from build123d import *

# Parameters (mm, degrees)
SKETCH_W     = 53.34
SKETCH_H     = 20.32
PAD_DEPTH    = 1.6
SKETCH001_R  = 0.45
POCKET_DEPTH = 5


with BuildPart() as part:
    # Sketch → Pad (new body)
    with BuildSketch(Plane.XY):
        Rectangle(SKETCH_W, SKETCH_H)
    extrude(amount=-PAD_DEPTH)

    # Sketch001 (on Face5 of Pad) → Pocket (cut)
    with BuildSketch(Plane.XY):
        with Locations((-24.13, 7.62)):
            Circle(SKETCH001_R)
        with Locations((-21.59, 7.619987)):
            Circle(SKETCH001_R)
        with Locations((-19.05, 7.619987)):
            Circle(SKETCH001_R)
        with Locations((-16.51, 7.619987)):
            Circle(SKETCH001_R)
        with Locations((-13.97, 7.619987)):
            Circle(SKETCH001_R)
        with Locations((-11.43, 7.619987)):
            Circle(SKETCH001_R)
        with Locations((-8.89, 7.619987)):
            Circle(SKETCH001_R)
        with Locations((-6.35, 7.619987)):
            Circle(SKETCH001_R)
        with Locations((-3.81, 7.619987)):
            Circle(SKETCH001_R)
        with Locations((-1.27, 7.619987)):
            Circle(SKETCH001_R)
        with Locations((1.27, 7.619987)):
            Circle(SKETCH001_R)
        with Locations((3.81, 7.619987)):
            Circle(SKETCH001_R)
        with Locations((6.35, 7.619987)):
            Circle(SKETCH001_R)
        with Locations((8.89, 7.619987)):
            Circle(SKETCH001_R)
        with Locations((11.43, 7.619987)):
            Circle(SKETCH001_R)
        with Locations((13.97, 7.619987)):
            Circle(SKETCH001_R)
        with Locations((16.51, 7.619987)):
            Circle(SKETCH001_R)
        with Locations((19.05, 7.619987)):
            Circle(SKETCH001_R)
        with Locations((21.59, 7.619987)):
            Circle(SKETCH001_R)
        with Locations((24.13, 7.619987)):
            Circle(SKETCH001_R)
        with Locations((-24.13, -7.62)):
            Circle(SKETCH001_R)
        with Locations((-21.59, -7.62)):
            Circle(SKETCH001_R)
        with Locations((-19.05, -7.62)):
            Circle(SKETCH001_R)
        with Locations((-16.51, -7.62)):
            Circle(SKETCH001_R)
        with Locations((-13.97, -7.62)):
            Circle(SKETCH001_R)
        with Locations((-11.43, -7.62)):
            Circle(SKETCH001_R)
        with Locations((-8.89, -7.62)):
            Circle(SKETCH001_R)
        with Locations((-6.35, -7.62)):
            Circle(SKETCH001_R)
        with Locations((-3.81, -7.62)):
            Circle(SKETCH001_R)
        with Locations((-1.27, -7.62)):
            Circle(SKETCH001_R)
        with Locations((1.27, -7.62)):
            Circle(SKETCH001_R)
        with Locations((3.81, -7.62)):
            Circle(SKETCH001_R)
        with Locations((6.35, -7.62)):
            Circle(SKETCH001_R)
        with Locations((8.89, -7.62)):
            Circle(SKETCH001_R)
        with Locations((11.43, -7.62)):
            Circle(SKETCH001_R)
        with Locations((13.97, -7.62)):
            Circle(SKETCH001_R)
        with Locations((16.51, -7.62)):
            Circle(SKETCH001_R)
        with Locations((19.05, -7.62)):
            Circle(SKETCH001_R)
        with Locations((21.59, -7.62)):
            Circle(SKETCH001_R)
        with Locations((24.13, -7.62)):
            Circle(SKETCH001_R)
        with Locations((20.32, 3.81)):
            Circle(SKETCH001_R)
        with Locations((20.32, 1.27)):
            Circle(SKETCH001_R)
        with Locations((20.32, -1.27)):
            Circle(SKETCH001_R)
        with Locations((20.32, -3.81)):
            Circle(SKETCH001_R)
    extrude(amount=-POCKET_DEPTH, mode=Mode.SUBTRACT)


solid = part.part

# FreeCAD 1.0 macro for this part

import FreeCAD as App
import Part
import Sketcher
from FreeCAD import Vector


def add_polygon(sketch, points):
    """Adds a closed chain of lines whose ends are joined by coincident constraints."""
    first, n = sketch.GeometryCount, len(points)
    for a, b in zip(points, points[1:] + points[:1]):
        sketch.addGeometry(Part.LineSegment(App.Vector(*a, 0), App.Vector(*b, 0)), False)
    for i in range(n):
        sketch.addConstraint(Sketcher.Constraint("Coincident", first + i, 2, first + (i + 1) % n, 1))

doc = App.newDocument("Part")
body = doc.addObject("PartDesign::Body", "Body")

sketch1 = body.newObject("Sketcher::SketchObject", "Sketch")
sketch1.AttachmentSupport = (doc.getObject("XY_Plane"), [""])
sketch1.MapMode = "FlatFace"
add_polygon(sketch1, [(-26.67, 10.16), (-26.67, -10.16), (26.67, -10.16), (26.67, 10.16)])
sketch1.addConstraint([
    Sketcher.Constraint("Vertical", 0),
    Sketcher.Constraint("Horizontal", 1),
    Sketcher.Constraint("Vertical", 2),
    Sketcher.Constraint("Horizontal", 3),
    Sketcher.Constraint("Symmetric", 0, 2, 2, 2, -1, 1),
    Sketcher.Constraint("DistanceX", 1, 1, 1, 2, 53.34),
    Sketcher.Constraint("DistanceY", 0, 2, 0, 1, 20.32),
])
pad1 = body.newObject("PartDesign::Pad", "Pad")
pad1.Profile = sketch1
pad1.Length = 1.6
pad1.Reversed = True

sketch2 = body.newObject("Sketcher::SketchObject", "Sketch001")
sketch2.AttachmentSupport = (doc.getObject("XY_Plane"), [""])
sketch2.MapMode = "FlatFace"
sketch2.addGeometry([
    Part.Circle(Vector(-24.13, 7.62, 0), Vector(0, 0, 1), 0.45),
    Part.Circle(Vector(-21.59, 7.619987, 0), Vector(0, 0, 1), 0.45),
    Part.Circle(Vector(-19.05, 7.619987, 0), Vector(0, 0, 1), 0.45),
    Part.Circle(Vector(-16.51, 7.619987, 0), Vector(0, 0, 1), 0.45),
    Part.Circle(Vector(-13.97, 7.619987, 0), Vector(0, 0, 1), 0.45),
    Part.Circle(Vector(-11.43, 7.619987, 0), Vector(0, 0, 1), 0.45),
    Part.Circle(Vector(-8.89, 7.619987, 0), Vector(0, 0, 1), 0.45),
    Part.Circle(Vector(-6.35, 7.619987, 0), Vector(0, 0, 1), 0.45),
    Part.Circle(Vector(-3.81, 7.619987, 0), Vector(0, 0, 1), 0.45),
    Part.Circle(Vector(-1.27, 7.619987, 0), Vector(0, 0, 1), 0.45),
    Part.Circle(Vector(1.27, 7.619987, 0), Vector(0, 0, 1), 0.45),
    Part.Circle(Vector(3.81, 7.619987, 0), Vector(0, 0, 1), 0.45),
    Part.Circle(Vector(6.35, 7.619987, 0), Vector(0, 0, 1), 0.45),
    Part.Circle(Vector(8.89, 7.619987, 0), Vector(0, 0, 1), 0.45),
    Part.Circle(Vector(11.43, 7.619987, 0), Vector(0, 0, 1), 0.45),
    Part.Circle(Vector(13.97, 7.619987, 0), Vector(0, 0, 1), 0.45),
    Part.Circle(Vector(16.51, 7.619987, 0), Vector(0, 0, 1), 0.45),
    Part.Circle(Vector(19.05, 7.619987, 0), Vector(0, 0, 1), 0.45),
    Part.Circle(Vector(21.59, 7.619987, 0), Vector(0, 0, 1), 0.45),
    Part.Circle(Vector(24.13, 7.619987, 0), Vector(0, 0, 1), 0.45),
    Part.Circle(Vector(-24.13, -7.62, 0), Vector(0, 0, 1), 0.45),
    Part.Circle(Vector(-21.59, -7.62, 0), Vector(0, 0, 1), 0.45),
    Part.Circle(Vector(-19.05, -7.62, 0), Vector(0, 0, 1), 0.45),
    Part.Circle(Vector(-16.51, -7.62, 0), Vector(0, 0, 1), 0.45),
    Part.Circle(Vector(-13.97, -7.62, 0), Vector(0, 0, 1), 0.45),
    Part.Circle(Vector(-11.43, -7.62, 0), Vector(0, 0, 1), 0.45),
    Part.Circle(Vector(-8.89, -7.62, 0), Vector(0, 0, 1), 0.45),
    Part.Circle(Vector(-6.35, -7.62, 0), Vector(0, 0, 1), 0.45),
    Part.Circle(Vector(-3.81, -7.62, 0), Vector(0, 0, 1), 0.45),
    Part.Circle(Vector(-1.27, -7.62, 0), Vector(0, 0, 1), 0.45),
    Part.Circle(Vector(1.27, -7.62, 0), Vector(0, 0, 1), 0.45),
    Part.Circle(Vector(3.81, -7.62, 0), Vector(0, 0, 1), 0.45),
    Part.Circle(Vector(6.35, -7.62, 0), Vector(0, 0, 1), 0.45),
    Part.Circle(Vector(8.89, -7.62, 0), Vector(0, 0, 1), 0.45),
    Part.Circle(Vector(11.43, -7.62, 0), Vector(0, 0, 1), 0.45),
    Part.Circle(Vector(13.97, -7.62, 0), Vector(0, 0, 1), 0.45),
    Part.Circle(Vector(16.51, -7.62, 0), Vector(0, 0, 1), 0.45),
    Part.Circle(Vector(19.05, -7.62, 0), Vector(0, 0, 1), 0.45),
    Part.Circle(Vector(21.59, -7.62, 0), Vector(0, 0, 1), 0.45),
    Part.Circle(Vector(24.13, -7.62, 0), Vector(0, 0, 1), 0.45),
    Part.Circle(Vector(20.32, 3.81, 0), Vector(0, 0, 1), 0.45),
    Part.Circle(Vector(20.32, 1.27, 0), Vector(0, 0, 1), 0.45),
    Part.Circle(Vector(20.32, -1.27, 0), Vector(0, 0, 1), 0.45),
    Part.Circle(Vector(20.32, -3.81, 0), Vector(0, 0, 1), 0.45),
], False)
sketch2.addConstraint([
    Sketcher.Constraint("Equal", 0, 1),
    Sketcher.Constraint("Equal", 1, 2),
    Sketcher.Constraint("Equal", 2, 3),
    Sketcher.Constraint("Equal", 3, 4),
    Sketcher.Constraint("Equal", 4, 5),
    Sketcher.Constraint("Equal", 5, 6),
    Sketcher.Constraint("Equal", 6, 7),
    Sketcher.Constraint("Equal", 7, 8),
    Sketcher.Constraint("Equal", 8, 9),
    Sketcher.Constraint("Equal", 9, 10),
    Sketcher.Constraint("Equal", 10, 11),
    Sketcher.Constraint("Equal", 11, 12),
    Sketcher.Constraint("Equal", 12, 13),
    Sketcher.Constraint("Equal", 13, 14),
    Sketcher.Constraint("Equal", 14, 15),
    Sketcher.Constraint("Equal", 15, 16),
    Sketcher.Constraint("Equal", 16, 17),
    Sketcher.Constraint("Equal", 17, 18),
    Sketcher.Constraint("Equal", 18, 19),
    Sketcher.Constraint("Equal", 19, 20),
    Sketcher.Constraint("Equal", 20, 21),
    Sketcher.Constraint("Equal", 21, 22),
    Sketcher.Constraint("Equal", 22, 23),
    Sketcher.Constraint("Equal", 23, 24),
    Sketcher.Constraint("Equal", 24, 25),
    Sketcher.Constraint("Equal", 25, 26),
    Sketcher.Constraint("Equal", 26, 27),
    Sketcher.Constraint("Equal", 27, 28),
    Sketcher.Constraint("Equal", 28, 29),
    Sketcher.Constraint("Equal", 29, 30),
    Sketcher.Constraint("Equal", 30, 31),
    Sketcher.Constraint("Equal", 31, 32),
    Sketcher.Constraint("Equal", 32, 33),
    Sketcher.Constraint("Equal", 33, 34),
    Sketcher.Constraint("Equal", 34, 35),
    Sketcher.Constraint("Equal", 35, 36),
    Sketcher.Constraint("Equal", 36, 37),
    Sketcher.Constraint("Equal", 37, 38),
    Sketcher.Constraint("Equal", 38, 39),
    Sketcher.Constraint("Equal", 39, 40),
    Sketcher.Constraint("Equal", 40, 41),
    Sketcher.Constraint("Equal", 41, 42),
    Sketcher.Constraint("Equal", 42, 43),
    Sketcher.Constraint("Symmetric", 0, 3, 39, 3, -1, 1),
    Sketcher.Constraint("Symmetric", 9, 3, 10, 3, -2),
    Sketcher.Constraint("Symmetric", 8, 3, 11, 3, -2),
    Sketcher.Constraint("Symmetric", 7, 3, 12, 3, -2),
    Sketcher.Constraint("Symmetric", 6, 3, 13, 3, -2),
    Sketcher.Constraint("Symmetric", 5, 3, 14, 3, -2),
    Sketcher.Constraint("Symmetric", 4, 3, 15, 3, -2),
    Sketcher.Constraint("Symmetric", 3, 3, 16, 3, -2),
    Sketcher.Constraint("Symmetric", 2, 3, 17, 3, -2),
    Sketcher.Constraint("Symmetric", 1, 3, 18, 3, -2),
    Sketcher.Constraint("Symmetric", 29, 3, 30, 3, -2),
    Sketcher.Constraint("Symmetric", 28, 3, 31, 3, -2),
    Sketcher.Constraint("Symmetric", 27, 3, 32, 3, -2),
    Sketcher.Constraint("Symmetric", 26, 3, 33, 3, -2),
    Sketcher.Constraint("Symmetric", 25, 3, 34, 3, -2),
    Sketcher.Constraint("Symmetric", 24, 3, 35, 3, -2),
    Sketcher.Constraint("Symmetric", 23, 3, 36, 3, -2),
    Sketcher.Constraint("Symmetric", 22, 3, 37, 3, -2),
    Sketcher.Constraint("Symmetric", 21, 3, 38, 3, -2),
    Sketcher.Constraint("Symmetric", 20, 3, 39, 3, -2),
    Sketcher.Constraint("Symmetric", 41, 3, 42, 3, -1),
    Sketcher.Constraint("Symmetric", 40, 3, 43, 3, -1),
    Sketcher.Constraint("Horizontal", 1, 3, 2, 3),
    Sketcher.Constraint("Horizontal", 2, 3, 3, 3),
    Sketcher.Constraint("Horizontal", 3, 3, 4, 3),
    Sketcher.Constraint("Horizontal", 4, 3, 5, 3),
    Sketcher.Constraint("Horizontal", 5, 3, 6, 3),
    Sketcher.Constraint("Horizontal", 6, 3, 7, 3),
    Sketcher.Constraint("Horizontal", 7, 3, 8, 3),
    Sketcher.Constraint("Horizontal", 8, 3, 9, 3),
    Sketcher.Constraint("Horizontal", 18, 3, 19, 3),
    Sketcher.Constraint("Horizontal", 20, 3, 21, 3),
    Sketcher.Constraint("Horizontal", 21, 3, 22, 3),
    Sketcher.Constraint("Horizontal", 22, 3, 23, 3),
    Sketcher.Constraint("Horizontal", 23, 3, 24, 3),
    Sketcher.Constraint("Horizontal", 24, 3, 25, 3),
    Sketcher.Constraint("Horizontal", 25, 3, 26, 3),
    Sketcher.Constraint("Horizontal", 26, 3, 27, 3),
    Sketcher.Constraint("Horizontal", 27, 3, 28, 3),
    Sketcher.Constraint("Horizontal", 28, 3, 29, 3),
    Sketcher.Constraint("Vertical", 1, 3, 21, 3),
    Sketcher.Constraint("Vertical", 2, 3, 22, 3),
    Sketcher.Constraint("Vertical", 3, 3, 23, 3),
    Sketcher.Constraint("Vertical", 4, 3, 24, 3),
    Sketcher.Constraint("Vertical", 5, 3, 25, 3),
    Sketcher.Constraint("Vertical", 6, 3, 26, 3),
    Sketcher.Constraint("Vertical", 7, 3, 27, 3),
    Sketcher.Constraint("Vertical", 8, 3, 28, 3),
    Sketcher.Constraint("Vertical", 9, 3, 29, 3),
    Sketcher.Constraint("Vertical", 19, 3, 39, 3),
    Sketcher.Constraint("Vertical", 40, 3, 41, 3),
    Sketcher.Constraint("Diameter", 0, 0.9),
    Sketcher.Constraint("DistanceX", 0, 3, 5, 3, 12.7),
    Sketcher.Constraint("DistanceX", 1, 3, 6, 3, 12.7),
    Sketcher.Constraint("DistanceX", 2, 3, 7, 3, 12.7),
    Sketcher.Constraint("DistanceX", 3, 3, 8, 3, 12.7),
    Sketcher.Constraint("DistanceX", 4, 3, 9, 3, 12.7),
    Sketcher.Constraint("DistanceX", 5, 3, 10, 3, 12.7),
    Sketcher.Constraint("DistanceX", 6, 3, 11, 3, 12.7),
    Sketcher.Constraint("DistanceX", 7, 3, 12, 3, 12.7),
    Sketcher.Constraint("DistanceX", 0, 3, -1, 1, 24.13),
    Sketcher.Constraint("DistanceY", -1, 1, 0, 3, 7.62),
    Sketcher.Constraint("DistanceX", 1, 3, -1, 1, 21.59),
    Sketcher.Constraint("DistanceX", -1, 1, 40, 3, 20.32),
    Sketcher.Constraint("DistanceY", -1, 1, 40, 3, 3.81),
    Sketcher.Constraint("DistanceY", -1, 1, 41, 3, 1.27),
    Sketcher.Constraint("DistanceY", -1, 1, 1, 3, 7.619987),
])
pocket1 = body.newObject("PartDesign::Pocket", "Pocket")
pocket1.Profile = sketch2
pocket1.Length = 5

doc.recompute()
